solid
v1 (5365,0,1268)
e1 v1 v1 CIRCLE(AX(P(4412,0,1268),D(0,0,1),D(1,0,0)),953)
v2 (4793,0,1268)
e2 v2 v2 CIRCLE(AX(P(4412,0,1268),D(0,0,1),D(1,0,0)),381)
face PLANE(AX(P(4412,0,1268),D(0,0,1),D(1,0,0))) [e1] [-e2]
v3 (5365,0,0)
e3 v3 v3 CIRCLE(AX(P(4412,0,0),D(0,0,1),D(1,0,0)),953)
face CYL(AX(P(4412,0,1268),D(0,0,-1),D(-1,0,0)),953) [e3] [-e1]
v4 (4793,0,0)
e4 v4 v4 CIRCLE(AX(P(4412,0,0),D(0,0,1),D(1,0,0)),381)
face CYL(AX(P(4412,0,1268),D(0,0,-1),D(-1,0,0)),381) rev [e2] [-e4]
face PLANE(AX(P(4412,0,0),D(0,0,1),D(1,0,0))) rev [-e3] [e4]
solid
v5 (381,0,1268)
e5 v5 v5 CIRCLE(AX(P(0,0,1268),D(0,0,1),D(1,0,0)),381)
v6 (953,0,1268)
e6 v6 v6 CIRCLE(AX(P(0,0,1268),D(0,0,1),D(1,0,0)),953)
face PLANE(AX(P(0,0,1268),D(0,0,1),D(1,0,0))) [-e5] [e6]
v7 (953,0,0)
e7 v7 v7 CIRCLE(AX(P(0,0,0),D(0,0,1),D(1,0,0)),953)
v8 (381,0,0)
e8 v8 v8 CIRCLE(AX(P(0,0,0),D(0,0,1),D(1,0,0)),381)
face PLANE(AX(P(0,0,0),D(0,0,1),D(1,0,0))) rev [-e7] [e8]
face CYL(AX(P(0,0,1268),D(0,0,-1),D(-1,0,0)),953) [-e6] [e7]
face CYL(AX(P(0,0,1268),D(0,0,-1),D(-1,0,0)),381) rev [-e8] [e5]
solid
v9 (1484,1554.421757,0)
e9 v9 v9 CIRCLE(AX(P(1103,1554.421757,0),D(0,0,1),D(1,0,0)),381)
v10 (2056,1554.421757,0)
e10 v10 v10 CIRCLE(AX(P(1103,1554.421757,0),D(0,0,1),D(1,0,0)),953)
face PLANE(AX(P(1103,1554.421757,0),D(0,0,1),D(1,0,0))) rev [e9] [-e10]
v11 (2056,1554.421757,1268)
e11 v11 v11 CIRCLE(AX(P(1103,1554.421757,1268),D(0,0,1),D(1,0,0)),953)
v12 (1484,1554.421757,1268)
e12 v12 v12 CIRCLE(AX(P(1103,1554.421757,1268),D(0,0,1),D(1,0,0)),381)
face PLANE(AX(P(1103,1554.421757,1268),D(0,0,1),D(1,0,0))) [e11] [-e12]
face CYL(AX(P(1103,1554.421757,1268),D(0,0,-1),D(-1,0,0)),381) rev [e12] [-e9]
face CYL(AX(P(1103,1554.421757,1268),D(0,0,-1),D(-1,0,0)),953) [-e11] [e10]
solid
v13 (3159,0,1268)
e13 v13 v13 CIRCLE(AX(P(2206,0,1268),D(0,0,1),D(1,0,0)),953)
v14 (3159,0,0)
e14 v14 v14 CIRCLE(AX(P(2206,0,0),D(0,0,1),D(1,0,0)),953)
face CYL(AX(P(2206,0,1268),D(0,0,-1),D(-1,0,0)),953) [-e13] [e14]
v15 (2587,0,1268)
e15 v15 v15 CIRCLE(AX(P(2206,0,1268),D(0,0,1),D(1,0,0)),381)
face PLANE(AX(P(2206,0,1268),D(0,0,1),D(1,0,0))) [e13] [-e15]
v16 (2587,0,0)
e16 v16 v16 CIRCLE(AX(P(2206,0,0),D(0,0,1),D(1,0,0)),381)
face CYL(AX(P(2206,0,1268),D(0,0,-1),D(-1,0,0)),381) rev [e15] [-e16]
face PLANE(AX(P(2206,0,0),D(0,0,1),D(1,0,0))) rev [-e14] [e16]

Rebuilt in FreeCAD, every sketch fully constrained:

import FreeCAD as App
import Part
import Sketcher
Q = App.Units.Quantity

doc = App.newDocument("Part")
params = doc.addObject("Spreadsheet::Sheet", "Params")
for row, (alias, value) in enumerate([
    ("sketch1_diameter", "1906 mm"),
    ("sketch1_diameter2", "762 mm"),
    ("pad1_length", "1268 mm"),
    ("sketch2_diameter", "1906 mm"),
    ("sketch2_diameter2", "762 mm"),
    ("pad2_length", "1268 mm"),
    ("sketch3_diameter", "1906 mm"),
    ("sketch3_diameter2", "762 mm"),
    ("pad3_length", "1268 mm"),
    ("sketch4_diameter", "1906 mm"),
    ("sketch4_diameter2", "762 mm"),
    ("pad4_length", "1268 mm"),
], start=1):
    params.set(f"A{row}", alias)
    params.set(f"B{row}", "=" + value)
    params.setAlias(f"B{row}", alias)

body = doc.addObject("PartDesign::Body", "Body")

# Sketch on XY plane
sketch1 = doc.addObject("Sketcher::SketchObject", "Sketch")
body.addObject(sketch1)
sketch1.AttachmentSupport = (doc.XY_Plane, [""])
sketch1.MapMode = "FlatFace"
sketch1.addGeometry(Part.Circle(App.Vector(0, 0, 0), App.Vector(0, 0, 1), 953), False)
sketch1.addGeometry(Part.Circle(App.Vector(0, 0, 0), App.Vector(0, 0, 1), 381), False)
sketch1.addConstraint(Sketcher.Constraint("Coincident", 0, 3, -1, 1))
sketch1.addConstraint(Sketcher.Constraint("Coincident", 1, 3, -1, 1))
sketch1.addConstraint(Sketcher.Constraint("Diameter", 0, Q("1906 mm")))
sketch1.addConstraint(Sketcher.Constraint("Diameter", 1, Q("762 mm")))
sketch1.setExpression("Constraints[2]", "Params.sketch1_diameter")
sketch1.setExpression("Constraints[3]", "Params.sketch1_diameter2")
pad1 = doc.addObject("PartDesign::Pad", "Pad")
body.addObject(pad1)
pad1.Profile = sketch1
pad1.setExpression("Length", "Params.pad1_length")
body2 = doc.addObject("PartDesign::Body", "Body001")

# Sketch on XY plane
sketch2 = doc.addObject("Sketcher::SketchObject", "Sketch001")
body2.addObject(sketch2)
sketch2.AttachmentSupport = (doc.getObject("XY_Plane001"), [""])
sketch2.MapMode = "FlatFace"
sketch2.addGeometry(Part.Circle(App.Vector(2206, 0, 0), App.Vector(0, 0, 1), 953), False)
sketch2.addGeometry(Part.Circle(App.Vector(2206, 0, 0), App.Vector(0, 0, 1), 381), False)
sketch2.addConstraint(Sketcher.Constraint("Coincident", 1, 3, 0, 3))
sketch2.addConstraint(Sketcher.Constraint("PointOnObject", 0, 3, -1))
sketch2.addConstraint(Sketcher.Constraint("Diameter", 0, Q("1906 mm")))
sketch2.addConstraint(Sketcher.Constraint("Diameter", 1, Q("762 mm")))
sketch2.addConstraint(Sketcher.Constraint("DistanceX", -1, 1, 0, 3, Q("2206 mm")))
sketch2.setExpression("Constraints[2]", "Params.sketch2_diameter")
sketch2.setExpression("Constraints[3]", "Params.sketch2_diameter2")
pad2 = doc.addObject("PartDesign::Pad", "Pad001")
body2.addObject(pad2)
pad2.Profile = sketch2
pad2.setExpression("Length", "Params.pad2_length")
body3 = doc.addObject("PartDesign::Body", "Body002")

# Sketch on XY plane
sketch3 = doc.addObject("Sketcher::SketchObject", "Sketch002")
body3.addObject(sketch3)
sketch3.AttachmentSupport = (doc.getObject("XY_Plane002"), [""])
sketch3.MapMode = "FlatFace"
sketch3.addGeometry(Part.Circle(App.Vector(4412, 0, 0), App.Vector(0, 0, 1), 953), False)
sketch3.addGeometry(Part.Circle(App.Vector(4412, 0, 0), App.Vector(0, 0, 1), 381), False)
sketch3.addConstraint(Sketcher.Constraint("Coincident", 1, 3, 0, 3))
sketch3.addConstraint(Sketcher.Constraint("PointOnObject", 0, 3, -1))
sketch3.addConstraint(Sketcher.Constraint("Diameter", 0, Q("1906 mm")))
sketch3.addConstraint(Sketcher.Constraint("Diameter", 1, Q("762 mm")))
sketch3.addConstraint(Sketcher.Constraint("DistanceX", -1, 1, 0, 3, Q("4412 mm")))
sketch3.setExpression("Constraints[2]", "Params.sketch3_diameter")
sketch3.setExpression("Constraints[3]", "Params.sketch3_diameter2")
pad3 = doc.addObject("PartDesign::Pad", "Pad002")
body3.addObject(pad3)
pad3.Profile = sketch3
pad3.setExpression("Length", "Params.pad3_length")
body4 = doc.addObject("PartDesign::Body", "Body003")

# Sketch on XY plane
sketch4 = doc.addObject("Sketcher::SketchObject", "Sketch003")
body4.addObject(sketch4)
sketch4.AttachmentSupport = (doc.getObject("XY_Plane003"), [""])
sketch4.MapMode = "FlatFace"
sketch4.addGeometry(Part.Circle(App.Vector(1103, 1554.421757, 0), App.Vector(0, 0, 1), 953), False)
sketch4.addGeometry(Part.Circle(App.Vector(1103, 1554.421757, 0), App.Vector(0, 0, 1), 381), False)
sketch4.addConstraint(Sketcher.Constraint("Coincident", 1, 3, 0, 3))
sketch4.addConstraint(Sketcher.Constraint("Diameter", 0, Q("1906 mm")))
sketch4.addConstraint(Sketcher.Constraint("Diameter", 1, Q("762 mm")))
sketch4.addConstraint(Sketcher.Constraint("DistanceX", -1, 1, 0, 3, Q("1103 mm")))
sketch4.addConstraint(Sketcher.Constraint("DistanceY", -1, 1, 0, 3, Q("1554.421757 mm")))
sketch4.setExpression("Constraints[1]", "Params.sketch4_diameter")
sketch4.setExpression("Constraints[2]", "Params.sketch4_diameter2")
pad4 = doc.addObject("PartDesign::Pad", "Pad003")
body4.addObject(pad4)
pad4.Profile = sketch4
pad4.setExpression("Length", "Params.pad4_length")

doc.recompute()
